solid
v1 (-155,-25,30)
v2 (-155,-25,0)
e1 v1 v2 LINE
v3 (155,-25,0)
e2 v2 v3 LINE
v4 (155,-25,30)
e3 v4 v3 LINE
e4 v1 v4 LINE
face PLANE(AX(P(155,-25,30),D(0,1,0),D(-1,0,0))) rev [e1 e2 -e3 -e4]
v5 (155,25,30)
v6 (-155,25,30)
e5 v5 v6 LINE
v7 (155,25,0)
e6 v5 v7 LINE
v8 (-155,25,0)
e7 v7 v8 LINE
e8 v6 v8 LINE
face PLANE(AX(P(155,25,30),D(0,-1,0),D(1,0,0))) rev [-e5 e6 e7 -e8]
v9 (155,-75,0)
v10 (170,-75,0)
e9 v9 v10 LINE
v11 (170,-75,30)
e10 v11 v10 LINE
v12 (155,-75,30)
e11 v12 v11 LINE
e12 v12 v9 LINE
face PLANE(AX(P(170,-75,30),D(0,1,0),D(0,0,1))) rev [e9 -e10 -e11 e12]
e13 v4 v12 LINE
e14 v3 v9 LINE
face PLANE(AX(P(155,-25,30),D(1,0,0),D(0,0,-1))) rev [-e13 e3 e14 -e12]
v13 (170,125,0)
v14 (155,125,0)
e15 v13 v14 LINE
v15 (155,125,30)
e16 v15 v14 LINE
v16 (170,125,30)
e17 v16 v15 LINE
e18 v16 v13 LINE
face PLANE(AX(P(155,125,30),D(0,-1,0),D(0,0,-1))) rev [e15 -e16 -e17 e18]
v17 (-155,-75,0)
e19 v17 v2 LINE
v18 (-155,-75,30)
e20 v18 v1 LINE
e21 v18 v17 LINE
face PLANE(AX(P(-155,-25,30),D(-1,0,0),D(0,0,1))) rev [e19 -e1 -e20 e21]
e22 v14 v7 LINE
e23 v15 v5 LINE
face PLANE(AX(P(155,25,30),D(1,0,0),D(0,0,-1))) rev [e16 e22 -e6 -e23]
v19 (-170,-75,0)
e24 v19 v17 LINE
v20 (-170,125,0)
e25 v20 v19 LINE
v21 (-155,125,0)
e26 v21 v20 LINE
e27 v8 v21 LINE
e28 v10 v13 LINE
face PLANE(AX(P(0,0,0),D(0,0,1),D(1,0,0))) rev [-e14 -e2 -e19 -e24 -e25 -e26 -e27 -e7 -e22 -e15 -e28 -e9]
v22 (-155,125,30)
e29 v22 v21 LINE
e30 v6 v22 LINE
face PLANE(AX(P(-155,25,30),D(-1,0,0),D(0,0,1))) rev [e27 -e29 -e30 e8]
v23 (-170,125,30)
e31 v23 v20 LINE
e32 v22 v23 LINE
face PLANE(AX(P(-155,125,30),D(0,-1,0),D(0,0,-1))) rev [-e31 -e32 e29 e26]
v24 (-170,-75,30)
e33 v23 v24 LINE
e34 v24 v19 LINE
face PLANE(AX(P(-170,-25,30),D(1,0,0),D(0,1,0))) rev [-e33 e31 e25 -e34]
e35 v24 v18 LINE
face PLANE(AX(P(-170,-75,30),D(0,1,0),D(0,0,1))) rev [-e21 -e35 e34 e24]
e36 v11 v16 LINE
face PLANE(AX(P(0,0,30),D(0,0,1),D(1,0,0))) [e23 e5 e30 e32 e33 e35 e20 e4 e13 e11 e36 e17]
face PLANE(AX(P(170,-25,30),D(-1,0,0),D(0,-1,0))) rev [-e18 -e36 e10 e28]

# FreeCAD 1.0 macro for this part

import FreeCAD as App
import Part
import Sketcher
from FreeCAD import Vector
Q = App.Units.Quantity


def add_polygon(sketch, points):
    """Adds a closed chain of lines whose ends are joined by coincident constraints."""
    first, n = sketch.GeometryCount, len(points)
    for a, b in zip(points, points[1:] + points[:1]):
        sketch.addGeometry(Part.LineSegment(App.Vector(*a, 0), App.Vector(*b, 0)), False)
    for i in range(n):
        sketch.addConstraint(Sketcher.Constraint("Coincident", first + i, 2, first + (i + 1) % n, 1))

doc = App.newDocument("Part")
body = doc.addObject("PartDesign::Body", "Body")

# Sketch on XY plane
sketch1 = body.newObject("Sketcher::SketchObject", "Sketch")
sketch1.AttachmentSupport = (doc.getObject("XY_Plane"), [""])
sketch1.MapMode = "FlatFace"
add_polygon(sketch1, [(-155, -25), (155, -25), (155, -75), (170, -75), (170, 125), (155, 125), (155, 25), (-155, 25), (-155, 125), (-170, 125), (-170, -75), (-155, -75)])  # lines 0-11
sketch1.addConstraint([
    Sketcher.Constraint("Horizontal", 0),
    Sketcher.Constraint("Vertical", 1),
    Sketcher.Constraint("Horizontal", 2),
    Sketcher.Constraint("Vertical", 3),
    Sketcher.Constraint("Horizontal", 4),
    Sketcher.Constraint("Vertical", 5),
    Sketcher.Constraint("Horizontal", 6),
    Sketcher.Constraint("Vertical", 7),
    Sketcher.Constraint("Horizontal", 8),
    Sketcher.Constraint("Vertical", 9),
    Sketcher.Constraint("Horizontal", 10),
    Sketcher.Constraint("Vertical", 11),
    Sketcher.Constraint("Symmetric", 0, 2, 6, 2, -1, 1),
    Sketcher.Constraint("Symmetric", 4, 2, 7, 2, -2),
    Sketcher.Constraint("Symmetric", 2, 2, 9, 2, -2),
    Sketcher.Constraint("Vertical", 7, 2, 10, 2),
    Sketcher.Constraint("DistanceX", 0, 1, 0, 2, Q("310 mm")),
    Sketcher.Constraint("DistanceX", 2, 1, 2, 2, Q("15 mm")),
    Sketcher.Constraint("DistanceY", 1, 2, 1, 1, Q("50 mm")),
    Sketcher.Constraint("DistanceY", 3, 1, 3, 2, Q("200 mm")),
    Sketcher.Constraint("DistanceY", 5, 2, 5, 1, Q("100 mm")),
])
pad1 = body.newObject("PartDesign::Pad", "Pad")
pad1.Profile = sketch1
pad1.Length = 30

doc.recompute()
